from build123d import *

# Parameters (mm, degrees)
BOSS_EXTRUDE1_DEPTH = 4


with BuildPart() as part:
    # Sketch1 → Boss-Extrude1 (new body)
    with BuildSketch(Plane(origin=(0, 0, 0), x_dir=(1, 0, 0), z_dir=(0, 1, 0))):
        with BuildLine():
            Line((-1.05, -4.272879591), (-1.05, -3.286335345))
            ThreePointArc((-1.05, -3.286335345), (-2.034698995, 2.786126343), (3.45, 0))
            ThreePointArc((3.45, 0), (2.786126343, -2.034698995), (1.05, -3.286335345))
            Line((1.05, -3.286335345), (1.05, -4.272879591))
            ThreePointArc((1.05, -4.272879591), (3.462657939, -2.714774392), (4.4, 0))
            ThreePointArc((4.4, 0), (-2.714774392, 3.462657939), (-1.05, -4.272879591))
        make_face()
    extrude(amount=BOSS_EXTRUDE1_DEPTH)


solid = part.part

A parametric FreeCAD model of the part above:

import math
import FreeCAD as App
import Part
import Sketcher
Q = App.Units.Quantity

doc = App.newDocument("Part")
body = doc.addObject("PartDesign::Body", "Body")

sketch1 = body.newObject("Sketcher::SketchObject", "Sketch")
sketch1.AttachmentSupport = (doc.getObject("XZ_Plane"), [""])
sketch1.MapMode = "FlatFace"
sketch1.addGeometry([
    Part.LineSegment(App.Vector(-1.05, 4.27288, 0), App.Vector(-1.05, 3.286335, 0)),
    Part.ArcOfCircle(Part.Circle(App.Vector(0, 0, 0), App.Vector(0, 0, 1), 3.45), math.radians(107.718932), math.radians(360)),
    Part.ArcOfCircle(Part.Circle(App.Vector(0, 0, 0), App.Vector(0, 0, 1), 3.45), math.radians(0), math.radians(72.281068)),
    Part.LineSegment(App.Vector(1.05, 3.286335, 0), App.Vector(1.05, 4.27288, 0)),
    Part.ArcOfCircle(Part.Circle(App.Vector(0, 0, 0), App.Vector(0, 0, 1), 4.4), math.radians(0), math.radians(76.193929)),
    Part.ArcOfCircle(Part.Circle(App.Vector(0, 0, 0), App.Vector(0, 0, 1), 4.4), math.radians(103.806071), math.radians(360)),
], False)
sketch1.addConstraint([
    Sketcher.Constraint("Coincident", 0, 2, 1, 1),
    Sketcher.Constraint("Tangent", 1, 2, 2, 1),
    Sketcher.Constraint("Coincident", 2, 2, 3, 1),
    Sketcher.Constraint("Coincident", 3, 2, 4, 2),
    Sketcher.Constraint("Tangent", 4, 1, 5, 2),
    Sketcher.Constraint("Coincident", 5, 1, 0, 1),
    Sketcher.Constraint("Vertical", 0),
    Sketcher.Constraint("Vertical", 3),
    Sketcher.Constraint("Coincident", 1, 3, -1, 1),
    Sketcher.Constraint("Coincident", 4, 3, -1, 1),
    Sketcher.Constraint("Equal", 1, 2),
    Sketcher.Constraint("Equal", 4, 5),
    Sketcher.Constraint("PointOnObject", 1, 2, -1),
    Sketcher.Constraint("PointOnObject", 4, 1, -1),
    Sketcher.Constraint("Horizontal", 0, 2, 2, 2),
    Sketcher.Constraint("Radius", 4, Q("4.4 mm")),
    Sketcher.Constraint("Radius", 1, Q("3.45 mm")),
    Sketcher.Constraint("DistanceX", 0, 2, 1, 2, Q("4.5 mm")),
])
pad1 = body.newObject("PartDesign::Pad", "Pad")
pad1.Profile = sketch1
pad1.Length = 4
pad1.Reversed = True

doc.recompute()
